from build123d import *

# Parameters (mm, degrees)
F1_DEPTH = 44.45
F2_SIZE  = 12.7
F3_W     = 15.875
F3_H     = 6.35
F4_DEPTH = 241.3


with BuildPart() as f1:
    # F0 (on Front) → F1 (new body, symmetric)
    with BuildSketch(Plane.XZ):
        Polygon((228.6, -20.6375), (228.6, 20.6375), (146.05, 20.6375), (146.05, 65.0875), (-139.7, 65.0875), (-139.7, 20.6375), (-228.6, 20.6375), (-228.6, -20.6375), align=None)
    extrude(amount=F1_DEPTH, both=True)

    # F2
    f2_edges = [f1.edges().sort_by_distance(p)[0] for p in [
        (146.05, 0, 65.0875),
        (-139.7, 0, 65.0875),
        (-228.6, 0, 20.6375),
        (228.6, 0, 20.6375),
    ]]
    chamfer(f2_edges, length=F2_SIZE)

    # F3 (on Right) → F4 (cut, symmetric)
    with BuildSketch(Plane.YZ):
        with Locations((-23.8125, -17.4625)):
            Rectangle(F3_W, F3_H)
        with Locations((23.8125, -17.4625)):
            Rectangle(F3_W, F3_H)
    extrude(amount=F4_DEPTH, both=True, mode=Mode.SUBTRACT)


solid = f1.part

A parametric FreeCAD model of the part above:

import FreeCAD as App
import Part
import Sketcher
from FreeCAD import Vector
Q = App.Units.Quantity


def edges_at(feature, points):
    """Names of the edges that pass closest to the given points."""
    edges = feature.Shape.Edges
    near = lambda p: min(range(len(edges)), key=lambda i: edges[i].distToShape(Part.Vertex(*p))[0])
    return sorted({f"Edge{near(p) + 1}" for p in points})

doc = App.newDocument("Part")
body = doc.addObject("PartDesign::Body", "Body")

# Sketch on XZ plane
sketch1 = body.newObject("Sketcher::SketchObject", "Sketch")
sketch1.AttachmentSupport = (doc.getObject("XZ_Plane"), [""])
sketch1.MapMode = "FlatFace"
sketch1.addGeometry(Part.LineSegment(Vector(229, -21, 0), Vector(229, 21, 0)), False)
sketch1.addGeometry(Part.LineSegment(Vector(229, 21, 0), Vector(146, 21, 0)), False)
sketch1.addGeometry(Part.LineSegment(Vector(146, 21, 0), Vector(146, 65, 0)), False)
sketch1.addGeometry(Part.LineSegment(Vector(146, 65, 0), Vector(-140, 65, 0)), False)
sketch1.addGeometry(Part.LineSegment(Vector(-140, 65, 0), Vector(-140, 21, 0)), False)
sketch1.addGeometry(Part.LineSegment(Vector(-140, 21, 0), Vector(-229, 21, 0)), False)
sketch1.addGeometry(Part.LineSegment(Vector(-229, 21, 0), Vector(-229, -21, 0)), False)
sketch1.addGeometry(Part.LineSegment(Vector(-229, -21, 0), Vector(229, -21, 0)), False)
sketch1.addConstraint(Sketcher.Constraint("Coincident", 0, 2, 1, 1))
sketch1.addConstraint(Sketcher.Constraint("Coincident", 1, 2, 2, 1))
sketch1.addConstraint(Sketcher.Constraint("Coincident", 2, 2, 3, 1))
sketch1.addConstraint(Sketcher.Constraint("Coincident", 3, 2, 4, 1))
sketch1.addConstraint(Sketcher.Constraint("Coincident", 4, 2, 5, 1))
sketch1.addConstraint(Sketcher.Constraint("Coincident", 5, 2, 6, 1))
sketch1.addConstraint(Sketcher.Constraint("Coincident", 6, 2, 7, 1))
sketch1.addConstraint(Sketcher.Constraint("Coincident", 7, 2, 0, 1))
sketch1.addConstraint(Sketcher.Constraint("Vertical", 0))
sketch1.addConstraint(Sketcher.Constraint("Horizontal", 1))
sketch1.addConstraint(Sketcher.Constraint("Vertical", 2))
sketch1.addConstraint(Sketcher.Constraint("Horizontal", 3))
sketch1.addConstraint(Sketcher.Constraint("Vertical", 4))
sketch1.addConstraint(Sketcher.Constraint("Horizontal", 5))
sketch1.addConstraint(Sketcher.Constraint("Vertical", 6))
sketch1.addConstraint(Sketcher.Constraint("Horizontal", 7))
sketch1.addConstraint(Sketcher.Constraint("Symmetric", 0, 2, 6, 2, -1, 1))
sketch1.addConstraint(Sketcher.Constraint("Horizontal", 1, 2, 4, 2))
sketch1.addConstraint(Sketcher.Constraint("DistanceX", 7, 1, 7, 2, Q("18 in")))
sketch1.addConstraint(Sketcher.Constraint("DistanceX", 5, 2, 5, 1, Q("3.5 in")))
sketch1.addConstraint(Sketcher.Constraint("DistanceX", 1, 2, 1, 1, Q("3.25 in")))
sketch1.addConstraint(Sketcher.Constraint("DistanceY", 2, 1, 2, 2, Q("1.75 in")))
sketch1.addConstraint(Sketcher.Constraint("DistanceY", 0, 1, 0, 2, Q("1.625 in")))
pad1 = body.newObject("PartDesign::Pad", "Pad")
pad1.Profile = sketch1
pad1.Length = Q("3.5 in")
pad1.Midplane = True
doc.recompute()

chamfer = body.newObject("PartDesign::Chamfer", "Chamfer")
chamfer.Base = (pad1, edges_at(pad1, [
    (146.05, 0, 65.088),
    (-139.7, 0, 65.088),
    (-228.6, 0, 20.637),
    (228.6, 0, 20.637),
]))
chamfer.Size = Q("0.5 in")

# Sketch on YZ plane
sketch2 = body.newObject("Sketcher::SketchObject", "Sketch001")
sketch2.AttachmentSupport = (doc.getObject("YZ_Plane"), [""])
sketch2.MapMode = "FlatFace"
sketch2.addGeometry(Part.LineSegment(Vector(-32, -14, 0), Vector(-32, -21, 0)), False)
sketch2.addGeometry(Part.LineSegment(Vector(-32, -21, 0), Vector(-16, -21, 0)), False)
sketch2.addGeometry(Part.LineSegment(Vector(-16, -21, 0), Vector(-16, -14, 0)), False)
sketch2.addGeometry(Part.LineSegment(Vector(-16, -14, 0), Vector(-32, -14, 0)), False)
sketch2.addGeometry(Part.LineSegment(Vector(16, -14, 0), Vector(16, -21, 0)), False)
sketch2.addGeometry(Part.LineSegment(Vector(16, -21, 0), Vector(32, -21, 0)), False)
sketch2.addGeometry(Part.LineSegment(Vector(32, -21, 0), Vector(32, -14, 0)), False)
sketch2.addGeometry(Part.LineSegment(Vector(32, -14, 0), Vector(16, -14, 0)), False)
sketch2.addConstraint(Sketcher.Constraint("Coincident", 0, 2, 1, 1))
sketch2.addConstraint(Sketcher.Constraint("Coincident", 1, 2, 2, 1))
sketch2.addConstraint(Sketcher.Constraint("Coincident", 2, 2, 3, 1))
sketch2.addConstraint(Sketcher.Constraint("Coincident", 3, 2, 0, 1))
sketch2.addConstraint(Sketcher.Constraint("Coincident", 4, 2, 5, 1))
sketch2.addConstraint(Sketcher.Constraint("Coincident", 5, 2, 6, 1))
sketch2.addConstraint(Sketcher.Constraint("Coincident", 6, 2, 7, 1))
sketch2.addConstraint(Sketcher.Constraint("Coincident", 7, 2, 4, 1))
sketch2.addConstraint(Sketcher.Constraint("Vertical", 0))
sketch2.addConstraint(Sketcher.Constraint("Horizontal", 1))
sketch2.addConstraint(Sketcher.Constraint("Vertical", 2))
sketch2.addConstraint(Sketcher.Constraint("Horizontal", 3))
sketch2.addConstraint(Sketcher.Constraint("Vertical", 4))
sketch2.addConstraint(Sketcher.Constraint("Horizontal", 5))
sketch2.addConstraint(Sketcher.Constraint("Vertical", 6))
sketch2.addConstraint(Sketcher.Constraint("Horizontal", 7))
sketch2.addConstraint(Sketcher.Constraint("Symmetric", 1, 2, 4, 2, -2))
sketch2.addConstraint(Sketcher.Constraint("Symmetric", 3, 2, 6, 2, -2))
sketch2.addConstraint(Sketcher.Constraint("DistanceY", 0, 2, 0, 1, Q("0.25 in")))
sketch2.addConstraint(Sketcher.Constraint("DistanceX", 0, 2, 5, 2, Q("2.5 in")))
sketch2.addConstraint(Sketcher.Constraint("DistanceX", 1, 1, 1, 2, Q("0.625 in")))
sketch2.addConstraint(Sketcher.Constraint("DistanceY", 0, 2, -1, 1, Q("0.8125 in")))
pocket1 = body.newObject("PartDesign::Pocket", "Pocket")
pocket1.Profile = sketch2
pocket1.Length = Q("19 in")
pocket1.Midplane = True

doc.recompute()
